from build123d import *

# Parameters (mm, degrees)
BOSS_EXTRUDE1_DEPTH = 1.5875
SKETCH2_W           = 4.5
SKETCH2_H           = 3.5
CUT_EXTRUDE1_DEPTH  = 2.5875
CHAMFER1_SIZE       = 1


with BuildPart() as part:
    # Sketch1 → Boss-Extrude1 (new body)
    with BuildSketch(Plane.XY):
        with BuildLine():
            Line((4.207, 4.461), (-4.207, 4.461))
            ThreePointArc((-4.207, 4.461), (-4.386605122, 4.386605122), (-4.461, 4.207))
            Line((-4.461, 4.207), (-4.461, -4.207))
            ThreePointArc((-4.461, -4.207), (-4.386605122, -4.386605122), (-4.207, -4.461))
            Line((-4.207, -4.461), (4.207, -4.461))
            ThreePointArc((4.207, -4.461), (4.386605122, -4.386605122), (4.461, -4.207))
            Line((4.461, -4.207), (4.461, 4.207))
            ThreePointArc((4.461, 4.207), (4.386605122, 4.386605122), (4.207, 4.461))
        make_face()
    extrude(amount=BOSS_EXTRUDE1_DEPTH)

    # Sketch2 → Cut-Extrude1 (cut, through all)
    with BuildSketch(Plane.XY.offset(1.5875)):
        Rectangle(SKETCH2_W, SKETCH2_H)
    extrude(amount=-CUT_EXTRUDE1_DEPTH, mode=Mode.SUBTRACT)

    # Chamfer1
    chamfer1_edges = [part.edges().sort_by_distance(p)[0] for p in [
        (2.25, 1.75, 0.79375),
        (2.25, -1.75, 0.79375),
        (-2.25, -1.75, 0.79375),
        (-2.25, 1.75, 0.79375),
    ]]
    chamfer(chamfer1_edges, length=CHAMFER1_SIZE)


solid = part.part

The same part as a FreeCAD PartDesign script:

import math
import FreeCAD as App
import Part
import Sketcher

V = App.Vector


def edges_at(feature, points):
    """Names of the edges that pass closest to the given points."""
    edges = feature.Shape.Edges
    near = lambda p: min(range(len(edges)), key=lambda i: edges[i].distToShape(Part.Vertex(*p))[0])
    return sorted({f"Edge{near(p) + 1}" for p in points})

doc = App.newDocument("Part")
body = doc.addObject("PartDesign::Body", "Body")

# Sketch on XY plane
sketch1 = doc.addObject("Sketcher::SketchObject", "Sketch")
body.addObject(sketch1)
sketch1.AttachmentSupport = (doc.XY_Plane, [""])
sketch1.MapMode = "FlatFace"
sketch1.addGeometry(Part.LineSegment(V(4.21, 4.46, 0), V(-4.21, 4.46, 0)), False)
sketch1.addGeometry(Part.ArcOfCircle(Part.Circle(V(-4.21, 4.21, 0), V(0, 0, 1), 0.25), math.radians(90), math.radians(180)), False)
sketch1.addGeometry(Part.LineSegment(V(-4.46, 4.21, 0), V(-4.46, -4.21, 0)), False)
sketch1.addGeometry(Part.ArcOfCircle(Part.Circle(V(-4.21, -4.21, 0), V(0, 0, 1), 0.25), math.radians(-180), math.radians(-90)), False)
sketch1.addGeometry(Part.LineSegment(V(-4.21, -4.46, 0), V(4.21, -4.46, 0)), False)
sketch1.addGeometry(Part.ArcOfCircle(Part.Circle(V(4.21, -4.21, 0), V(0, 0, 1), 0.25), math.radians(-90), math.radians(0)), False)
sketch1.addGeometry(Part.LineSegment(V(4.46, -4.21, 0), V(4.46, 4.21, 0)), False)
sketch1.addGeometry(Part.ArcOfCircle(Part.Circle(V(4.21, 4.21, 0), V(0, 0, 1), 0.25), math.radians(0), math.radians(90)), False)
sketch1.addConstraint(Sketcher.Constraint("Tangent", 0, 2, 1, 1))
sketch1.addConstraint(Sketcher.Constraint("Tangent", 1, 2, 2, 1))
sketch1.addConstraint(Sketcher.Constraint("Tangent", 2, 2, 3, 1))
sketch1.addConstraint(Sketcher.Constraint("Tangent", 3, 2, 4, 1))
sketch1.addConstraint(Sketcher.Constraint("Tangent", 4, 2, 5, 1))
sketch1.addConstraint(Sketcher.Constraint("Tangent", 5, 2, 6, 1))
sketch1.addConstraint(Sketcher.Constraint("Tangent", 6, 2, 7, 1))
sketch1.addConstraint(Sketcher.Constraint("Tangent", 7, 2, 0, 1))
sketch1.addConstraint(Sketcher.Constraint("Horizontal", 0))
sketch1.addConstraint(Sketcher.Constraint("Vertical", 2))
sketch1.addConstraint(Sketcher.Constraint("Horizontal", 4))
sketch1.addConstraint(Sketcher.Constraint("Vertical", 6))
sketch1.addConstraint(Sketcher.Constraint("Equal", 1, 3))
sketch1.addConstraint(Sketcher.Constraint("Equal", 3, 5))
sketch1.addConstraint(Sketcher.Constraint("Equal", 5, 7))
sketch1.addConstraint(Sketcher.Constraint("Symmetric", 1, 3, 5, 3, -1, 1))
sketch1.addConstraint(Sketcher.Constraint("Equal", 4, 2))
sketch1.addConstraint(Sketcher.Constraint("Radius", 1, 0.254))
sketch1.addConstraint(Sketcher.Constraint("DistanceX", 0, 2, 0, 1, 8.414))
pad1 = doc.addObject("PartDesign::Pad", "Pad")
body.addObject(pad1)
pad1.Profile = sketch1
pad1.Length = 1.5875

# Sketch on XY plane
sketch2 = doc.addObject("Sketcher::SketchObject", "Sketch001")
body.addObject(sketch2)
sketch2.AttachmentSupport = (doc.XY_Plane, [""])
sketch2.MapMode = "FlatFace"
sketch2.AttachmentOffset = App.Placement(V(0, 0, 1.5875), App.Rotation())
sketch2.addGeometry(Part.LineSegment(V(-2.2, 1.8, 0), V(-2.2, -1.8, 0)), False)
sketch2.addGeometry(Part.LineSegment(V(-2.2, -1.8, 0), V(2.2, -1.8, 0)), False)
sketch2.addGeometry(Part.LineSegment(V(2.2, -1.8, 0), V(2.2, 1.8, 0)), False)
sketch2.addGeometry(Part.LineSegment(V(2.2, 1.8, 0), V(-2.2, 1.8, 0)), False)
sketch2.addConstraint(Sketcher.Constraint("Coincident", 0, 2, 1, 1))
sketch2.addConstraint(Sketcher.Constraint("Coincident", 1, 2, 2, 1))
sketch2.addConstraint(Sketcher.Constraint("Coincident", 2, 2, 3, 1))
sketch2.addConstraint(Sketcher.Constraint("Coincident", 3, 2, 0, 1))
sketch2.addConstraint(Sketcher.Constraint("Vertical", 0))
sketch2.addConstraint(Sketcher.Constraint("Horizontal", 1))
sketch2.addConstraint(Sketcher.Constraint("Vertical", 2))
sketch2.addConstraint(Sketcher.Constraint("Horizontal", 3))
sketch2.addConstraint(Sketcher.Constraint("Symmetric", 0, 2, 2, 2, -1, 1))
sketch2.addConstraint(Sketcher.Constraint("DistanceX", 1, 1, 1, 2, 4.5))
sketch2.addConstraint(Sketcher.Constraint("DistanceY", 0, 2, 0, 1, 3.5))
pocket1 = doc.addObject("PartDesign::Pocket", "Pocket")
body.addObject(pocket1)
pocket1.Profile = sketch2
pocket1.Type = "ThroughAll"
doc.recompute()

chamfer = doc.addObject("PartDesign::Chamfer", "Chamfer")
body.addObject(chamfer)
chamfer.Base = (pocket1, edges_at(pocket1, [
    (2.25, 1.75, 0.794),
    (2.25, -1.75, 0.794),
    (-2.25, -1.75, 0.794),
    (-2.25, 1.75, 0.794),
]))
chamfer.Size = 1

doc.recompute()
